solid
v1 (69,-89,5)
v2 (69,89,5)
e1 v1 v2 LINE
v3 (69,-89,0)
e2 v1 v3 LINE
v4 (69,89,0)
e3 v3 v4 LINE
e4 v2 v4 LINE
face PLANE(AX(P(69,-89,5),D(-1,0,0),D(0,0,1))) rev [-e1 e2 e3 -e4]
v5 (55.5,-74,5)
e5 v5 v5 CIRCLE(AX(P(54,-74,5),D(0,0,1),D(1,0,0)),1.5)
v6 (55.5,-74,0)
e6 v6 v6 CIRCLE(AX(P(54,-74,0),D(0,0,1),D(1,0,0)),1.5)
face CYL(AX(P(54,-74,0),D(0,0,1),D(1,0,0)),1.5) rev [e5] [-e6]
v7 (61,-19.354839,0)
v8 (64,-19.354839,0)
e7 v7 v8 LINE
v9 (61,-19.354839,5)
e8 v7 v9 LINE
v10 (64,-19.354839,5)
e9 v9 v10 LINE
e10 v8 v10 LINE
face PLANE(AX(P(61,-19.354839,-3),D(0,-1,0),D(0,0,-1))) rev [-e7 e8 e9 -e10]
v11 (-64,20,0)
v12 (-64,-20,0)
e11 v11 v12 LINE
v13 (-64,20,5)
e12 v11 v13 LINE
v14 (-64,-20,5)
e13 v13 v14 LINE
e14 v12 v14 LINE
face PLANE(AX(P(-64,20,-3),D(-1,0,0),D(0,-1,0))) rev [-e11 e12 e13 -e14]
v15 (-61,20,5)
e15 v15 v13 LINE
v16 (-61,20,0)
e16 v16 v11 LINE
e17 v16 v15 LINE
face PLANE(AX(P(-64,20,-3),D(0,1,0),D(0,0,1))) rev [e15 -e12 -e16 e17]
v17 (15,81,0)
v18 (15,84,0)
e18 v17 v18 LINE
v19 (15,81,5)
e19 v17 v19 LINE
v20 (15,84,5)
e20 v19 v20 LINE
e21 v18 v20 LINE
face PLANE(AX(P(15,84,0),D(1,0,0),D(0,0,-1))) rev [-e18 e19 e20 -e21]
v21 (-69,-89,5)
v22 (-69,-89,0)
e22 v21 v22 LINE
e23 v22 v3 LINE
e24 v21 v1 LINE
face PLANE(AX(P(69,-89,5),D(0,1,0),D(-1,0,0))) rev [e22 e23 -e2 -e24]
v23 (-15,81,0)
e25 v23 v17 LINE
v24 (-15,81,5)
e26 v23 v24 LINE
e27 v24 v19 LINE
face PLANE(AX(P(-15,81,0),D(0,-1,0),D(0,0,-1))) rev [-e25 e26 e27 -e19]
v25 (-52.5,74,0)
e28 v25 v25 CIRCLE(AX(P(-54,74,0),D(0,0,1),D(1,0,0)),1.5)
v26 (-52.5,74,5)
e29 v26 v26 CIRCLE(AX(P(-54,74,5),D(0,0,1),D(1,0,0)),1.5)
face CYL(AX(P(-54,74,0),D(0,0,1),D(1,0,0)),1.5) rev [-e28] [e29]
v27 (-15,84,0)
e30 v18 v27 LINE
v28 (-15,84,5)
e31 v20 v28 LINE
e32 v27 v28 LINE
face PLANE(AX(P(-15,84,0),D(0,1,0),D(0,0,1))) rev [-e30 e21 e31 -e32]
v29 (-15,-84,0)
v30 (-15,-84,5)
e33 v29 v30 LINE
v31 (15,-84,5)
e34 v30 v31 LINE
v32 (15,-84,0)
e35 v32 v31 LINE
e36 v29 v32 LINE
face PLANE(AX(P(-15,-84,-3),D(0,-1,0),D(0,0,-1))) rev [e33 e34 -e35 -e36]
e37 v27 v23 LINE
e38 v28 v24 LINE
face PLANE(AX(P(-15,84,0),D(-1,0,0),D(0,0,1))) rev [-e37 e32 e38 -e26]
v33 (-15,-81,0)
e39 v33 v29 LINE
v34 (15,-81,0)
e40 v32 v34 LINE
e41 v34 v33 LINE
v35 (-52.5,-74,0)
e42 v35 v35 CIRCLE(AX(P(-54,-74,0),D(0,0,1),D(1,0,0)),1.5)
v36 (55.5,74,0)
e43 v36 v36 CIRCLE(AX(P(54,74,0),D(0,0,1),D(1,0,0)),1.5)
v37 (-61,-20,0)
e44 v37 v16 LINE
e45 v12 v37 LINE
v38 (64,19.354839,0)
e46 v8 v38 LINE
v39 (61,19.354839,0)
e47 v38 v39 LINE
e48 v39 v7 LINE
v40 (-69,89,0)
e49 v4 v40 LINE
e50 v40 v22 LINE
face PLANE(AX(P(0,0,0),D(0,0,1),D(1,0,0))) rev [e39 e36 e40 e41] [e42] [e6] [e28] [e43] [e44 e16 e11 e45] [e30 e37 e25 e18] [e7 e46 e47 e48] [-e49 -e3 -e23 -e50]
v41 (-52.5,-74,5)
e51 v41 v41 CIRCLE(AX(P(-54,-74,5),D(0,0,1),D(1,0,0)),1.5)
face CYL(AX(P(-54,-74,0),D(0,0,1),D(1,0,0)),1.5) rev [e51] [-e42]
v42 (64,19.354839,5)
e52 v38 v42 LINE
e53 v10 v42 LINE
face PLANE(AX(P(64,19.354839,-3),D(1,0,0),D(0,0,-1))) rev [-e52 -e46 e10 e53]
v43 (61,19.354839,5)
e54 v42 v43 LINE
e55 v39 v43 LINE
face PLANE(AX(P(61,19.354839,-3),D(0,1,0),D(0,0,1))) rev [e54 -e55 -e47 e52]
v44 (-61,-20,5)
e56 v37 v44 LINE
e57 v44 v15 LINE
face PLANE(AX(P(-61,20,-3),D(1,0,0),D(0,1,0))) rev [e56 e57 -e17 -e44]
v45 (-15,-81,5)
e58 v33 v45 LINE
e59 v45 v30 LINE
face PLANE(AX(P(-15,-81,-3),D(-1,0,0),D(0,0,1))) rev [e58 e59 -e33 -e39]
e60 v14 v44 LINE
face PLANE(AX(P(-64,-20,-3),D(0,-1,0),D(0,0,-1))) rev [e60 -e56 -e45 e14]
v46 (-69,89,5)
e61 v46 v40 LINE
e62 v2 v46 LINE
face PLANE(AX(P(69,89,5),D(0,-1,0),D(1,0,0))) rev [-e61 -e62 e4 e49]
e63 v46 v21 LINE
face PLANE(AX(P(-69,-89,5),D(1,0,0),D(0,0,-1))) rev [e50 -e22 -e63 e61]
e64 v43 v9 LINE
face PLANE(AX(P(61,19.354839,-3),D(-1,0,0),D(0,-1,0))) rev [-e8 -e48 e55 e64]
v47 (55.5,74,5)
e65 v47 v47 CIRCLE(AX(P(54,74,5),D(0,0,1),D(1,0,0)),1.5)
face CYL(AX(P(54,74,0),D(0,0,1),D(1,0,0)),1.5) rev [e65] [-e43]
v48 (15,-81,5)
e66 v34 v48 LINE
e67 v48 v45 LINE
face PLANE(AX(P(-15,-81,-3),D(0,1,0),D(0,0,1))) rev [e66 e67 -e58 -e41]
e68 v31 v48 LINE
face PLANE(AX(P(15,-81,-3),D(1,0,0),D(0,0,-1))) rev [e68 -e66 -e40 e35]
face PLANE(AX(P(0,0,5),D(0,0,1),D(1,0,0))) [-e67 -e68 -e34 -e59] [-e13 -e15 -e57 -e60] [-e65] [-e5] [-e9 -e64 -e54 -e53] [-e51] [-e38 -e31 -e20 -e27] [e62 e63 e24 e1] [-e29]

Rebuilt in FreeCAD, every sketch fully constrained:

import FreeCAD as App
import Part
import Sketcher
Q = App.Units.Quantity

doc = App.newDocument("Part")
body = doc.addObject("PartDesign::Body", "Body")

# Sketch on XY plane
sketch1 = body.newObject("Sketcher::SketchObject", "Sketch")
sketch1.AttachmentSupport = (doc.getObject("XY_Plane"), [""])
sketch1.MapMode = "FlatFace"
sketch1.addGeometry([
    Part.LineSegment(App.Vector(-69, 89, 0), App.Vector(-69, -89, 0)),
    Part.LineSegment(App.Vector(-69, -89, 0), App.Vector(69, -89, 0)),
    Part.LineSegment(App.Vector(69, -89, 0), App.Vector(69, 89, 0)),
    Part.LineSegment(App.Vector(69, 89, 0), App.Vector(-69, 89, 0)),
], False)
sketch1.addConstraint([
    Sketcher.Constraint("Coincident", 0, 2, 1, 1),
    Sketcher.Constraint("Coincident", 1, 2, 2, 1),
    Sketcher.Constraint("Coincident", 2, 2, 3, 1),
    Sketcher.Constraint("Coincident", 3, 2, 0, 1),
    Sketcher.Constraint("Vertical", 0),
    Sketcher.Constraint("Horizontal", 1),
    Sketcher.Constraint("Vertical", 2),
    Sketcher.Constraint("Horizontal", 3),
    Sketcher.Constraint("Symmetric", 0, 2, 2, 2, -1, 1),
    Sketcher.Constraint("DistanceX", 1, 1, 1, 2, Q("138 mm")),
    Sketcher.Constraint("DistanceY", 0, 2, 0, 1, Q("178 mm")),
])
pad1 = body.newObject("PartDesign::Pad", "Pad")
pad1.Profile = sketch1
pad1.Length = 5

# Sketch on XY plane
sketch2 = body.newObject("Sketcher::SketchObject", "Sketch001")
sketch2.AttachmentSupport = (doc.getObject("XY_Plane"), [""])
sketch2.MapMode = "FlatFace"
sketch2.AttachmentOffset = App.Placement(App.Vector(0, 0, 5), App.Rotation())
sketch2.addGeometry([
    Part.LineSegment(App.Vector(-15, 84, 0), App.Vector(-15, 81, 0)),
    Part.LineSegment(App.Vector(-15, 81, 0), App.Vector(15, 81, 0)),
    Part.LineSegment(App.Vector(15, 81, 0), App.Vector(15, 84, 0)),
    Part.LineSegment(App.Vector(15, 84, 0), App.Vector(-15, 84, 0)),
], False)
sketch2.addConstraint([
    Sketcher.Constraint("Coincident", 0, 2, 1, 1),
    Sketcher.Constraint("Coincident", 1, 2, 2, 1),
    Sketcher.Constraint("Coincident", 2, 2, 3, 1),
    Sketcher.Constraint("Coincident", 3, 2, 0, 1),
    Sketcher.Constraint("Vertical", 0),
    Sketcher.Constraint("Horizontal", 1),
    Sketcher.Constraint("Vertical", 2),
    Sketcher.Constraint("Horizontal", 3),
    Sketcher.Constraint("DistanceX", 1, 1, 1, 2, Q("30 mm")),
    Sketcher.Constraint("DistanceY", 0, 2, 0, 1, Q("3 mm")),
    Sketcher.Constraint("DistanceX", 0, 2, -1, 1, Q("15 mm")),
    Sketcher.Constraint("DistanceY", -1, 1, 0, 2, Q("81 mm")),
])
pocket1 = body.newObject("PartDesign::Pocket", "Pocket")
pocket1.Profile = sketch2
pocket1.Type = "ThroughAll"

# Sketch on XY plane
sketch3 = body.newObject("Sketcher::SketchObject", "Sketch002")
sketch3.AttachmentSupport = (doc.getObject("XY_Plane"), [""])
sketch3.MapMode = "FlatFace"
sketch3.AttachmentOffset = App.Placement(App.Vector(0, 0, 5), App.Rotation())
sketch3.addGeometry([
    Part.LineSegment(App.Vector(-15, -81, 0), App.Vector(-15, -84, 0)),
    Part.LineSegment(App.Vector(-15, -84, 0), App.Vector(15, -84, 0)),
    Part.LineSegment(App.Vector(15, -84, 0), App.Vector(15, -81, 0)),
    Part.LineSegment(App.Vector(15, -81, 0), App.Vector(-15, -81, 0)),
], False)
sketch3.addConstraint([
    Sketcher.Constraint("Coincident", 0, 2, 1, 1),
    Sketcher.Constraint("Coincident", 1, 2, 2, 1),
    Sketcher.Constraint("Coincident", 2, 2, 3, 1),
    Sketcher.Constraint("Coincident", 3, 2, 0, 1),
    Sketcher.Constraint("Vertical", 0),
    Sketcher.Constraint("Horizontal", 1),
    Sketcher.Constraint("Vertical", 2),
    Sketcher.Constraint("Horizontal", 3),
    Sketcher.Constraint("DistanceX", 1, 1, 1, 2, Q("30 mm")),
    Sketcher.Constraint("DistanceY", 0, 2, 0, 1, Q("3 mm")),
    Sketcher.Constraint("DistanceX", 0, 2, -1, 1, Q("15 mm")),
    Sketcher.Constraint("DistanceY", 0, 2, -1, 1, Q("84 mm")),
])
pocket2 = body.newObject("PartDesign::Pocket", "Pocket001")
pocket2.Profile = sketch3
pocket2.Length = 8

# Sketch on XY plane
sketch4 = body.newObject("Sketcher::SketchObject", "Sketch003")
sketch4.AttachmentSupport = (doc.getObject("XY_Plane"), [""])
sketch4.MapMode = "FlatFace"
sketch4.AttachmentOffset = App.Placement(App.Vector(0, 0, 5), App.Rotation())
sketch4.addGeometry([
    Part.LineSegment(App.Vector(61, 19.4, 0), App.Vector(61, -19.4, 0)),
    Part.LineSegment(App.Vector(61, -19.4, 0), App.Vector(64, -19.4, 0)),
    Part.LineSegment(App.Vector(64, -19.4, 0), App.Vector(64, 19.4, 0)),
    Part.LineSegment(App.Vector(64, 19.4, 0), App.Vector(61, 19.4, 0)),
], False)
sketch4.addConstraint([
    Sketcher.Constraint("Coincident", 0, 2, 1, 1),
    Sketcher.Constraint("Coincident", 1, 2, 2, 1),
    Sketcher.Constraint("Coincident", 2, 2, 3, 1),
    Sketcher.Constraint("Coincident", 3, 2, 0, 1),
    Sketcher.Constraint("Vertical", 0),
    Sketcher.Constraint("Horizontal", 1),
    Sketcher.Constraint("Vertical", 2),
    Sketcher.Constraint("Horizontal", 3),
    Sketcher.Constraint("DistanceX", 1, 1, 1, 2, Q("3 mm")),
    Sketcher.Constraint("DistanceX", -1, 1, 0, 2, Q("61 mm")),
    Sketcher.Constraint("DistanceY", 0, 2, 0, 1, Q("38.709677 mm")),
    Sketcher.Constraint("DistanceY", 0, 2, -1, 1, Q("19.354839 mm")),
])
pocket3 = body.newObject("PartDesign::Pocket", "Pocket002")
pocket3.Profile = sketch4
pocket3.Length = 8

# Sketch on XY plane
sketch5 = body.newObject("Sketcher::SketchObject", "Sketch004")
sketch5.AttachmentSupport = (doc.getObject("XY_Plane"), [""])
sketch5.MapMode = "FlatFace"
sketch5.AttachmentOffset = App.Placement(App.Vector(0, 0, 5), App.Rotation())
sketch5.addGeometry([
    Part.LineSegment(App.Vector(-64, 20, 0), App.Vector(-64, -20, 0)),
    Part.LineSegment(App.Vector(-64, -20, 0), App.Vector(-61, -20, 0)),
    Part.LineSegment(App.Vector(-61, -20, 0), App.Vector(-61, 20, 0)),
    Part.LineSegment(App.Vector(-61, 20, 0), App.Vector(-64, 20, 0)),
], False)
sketch5.addConstraint([
    Sketcher.Constraint("Coincident", 0, 2, 1, 1),
    Sketcher.Constraint("Coincident", 1, 2, 2, 1),
    Sketcher.Constraint("Coincident", 2, 2, 3, 1),
    Sketcher.Constraint("Coincident", 3, 2, 0, 1),
    Sketcher.Constraint("Vertical", 0),
    Sketcher.Constraint("Horizontal", 1),
    Sketcher.Constraint("Vertical", 2),
    Sketcher.Constraint("Horizontal", 3),
    Sketcher.Constraint("DistanceX", 1, 1, 1, 2, Q("3 mm")),
    Sketcher.Constraint("DistanceY", 0, 2, 0, 1, Q("40 mm")),
    Sketcher.Constraint("DistanceX", 0, 2, -1, 1, Q("64 mm")),
    Sketcher.Constraint("DistanceY", 0, 2, -1, 1, Q("20 mm")),
])
pocket4 = body.newObject("PartDesign::Pocket", "Pocket003")
pocket4.Profile = sketch5
pocket4.Length = 8

# Sketch on XY plane
sketch6 = body.newObject("Sketcher::SketchObject", "Sketch005")
sketch6.AttachmentSupport = (doc.getObject("XY_Plane"), [""])
sketch6.MapMode = "FlatFace"
sketch6.AttachmentOffset = App.Placement(App.Vector(0, 0, 5), App.Rotation())
sketch6.addGeometry([
    Part.Circle(App.Vector(54, -74, 0), App.Vector(0, 0, 1), 1.5),
    Part.Circle(App.Vector(54, 74, 0), App.Vector(0, 0, 1), 1.5),
    Part.Circle(App.Vector(-54, 74, 0), App.Vector(0, 0, 1), 1.5),
    Part.Circle(App.Vector(-54, -74, 0), App.Vector(0, 0, 1), 1.5),
], False)
sketch6.addConstraint([
    Sketcher.Constraint("Equal", 0, 1),
    Sketcher.Constraint("Equal", 1, 2),
    Sketcher.Constraint("Equal", 2, 3),
    Sketcher.Constraint("Symmetric", 0, 3, 2, 3, -1, 1),
    Sketcher.Constraint("Symmetric", 1, 3, 3, 3, -1, 1),
    Sketcher.Constraint("Symmetric", 1, 3, 2, 3, -2),
    Sketcher.Constraint("Diameter", 0, Q("3 mm")),
    Sketcher.Constraint("DistanceX", -1, 1, 0, 3, Q("54 mm")),
    Sketcher.Constraint("DistanceY", 0, 3, -1, 1, Q("74 mm")),
])
pocket5 = body.newObject("PartDesign::Pocket", "Pocket004")
pocket5.Profile = sketch6
pocket5.Type = "ThroughAll"

doc.recompute()
